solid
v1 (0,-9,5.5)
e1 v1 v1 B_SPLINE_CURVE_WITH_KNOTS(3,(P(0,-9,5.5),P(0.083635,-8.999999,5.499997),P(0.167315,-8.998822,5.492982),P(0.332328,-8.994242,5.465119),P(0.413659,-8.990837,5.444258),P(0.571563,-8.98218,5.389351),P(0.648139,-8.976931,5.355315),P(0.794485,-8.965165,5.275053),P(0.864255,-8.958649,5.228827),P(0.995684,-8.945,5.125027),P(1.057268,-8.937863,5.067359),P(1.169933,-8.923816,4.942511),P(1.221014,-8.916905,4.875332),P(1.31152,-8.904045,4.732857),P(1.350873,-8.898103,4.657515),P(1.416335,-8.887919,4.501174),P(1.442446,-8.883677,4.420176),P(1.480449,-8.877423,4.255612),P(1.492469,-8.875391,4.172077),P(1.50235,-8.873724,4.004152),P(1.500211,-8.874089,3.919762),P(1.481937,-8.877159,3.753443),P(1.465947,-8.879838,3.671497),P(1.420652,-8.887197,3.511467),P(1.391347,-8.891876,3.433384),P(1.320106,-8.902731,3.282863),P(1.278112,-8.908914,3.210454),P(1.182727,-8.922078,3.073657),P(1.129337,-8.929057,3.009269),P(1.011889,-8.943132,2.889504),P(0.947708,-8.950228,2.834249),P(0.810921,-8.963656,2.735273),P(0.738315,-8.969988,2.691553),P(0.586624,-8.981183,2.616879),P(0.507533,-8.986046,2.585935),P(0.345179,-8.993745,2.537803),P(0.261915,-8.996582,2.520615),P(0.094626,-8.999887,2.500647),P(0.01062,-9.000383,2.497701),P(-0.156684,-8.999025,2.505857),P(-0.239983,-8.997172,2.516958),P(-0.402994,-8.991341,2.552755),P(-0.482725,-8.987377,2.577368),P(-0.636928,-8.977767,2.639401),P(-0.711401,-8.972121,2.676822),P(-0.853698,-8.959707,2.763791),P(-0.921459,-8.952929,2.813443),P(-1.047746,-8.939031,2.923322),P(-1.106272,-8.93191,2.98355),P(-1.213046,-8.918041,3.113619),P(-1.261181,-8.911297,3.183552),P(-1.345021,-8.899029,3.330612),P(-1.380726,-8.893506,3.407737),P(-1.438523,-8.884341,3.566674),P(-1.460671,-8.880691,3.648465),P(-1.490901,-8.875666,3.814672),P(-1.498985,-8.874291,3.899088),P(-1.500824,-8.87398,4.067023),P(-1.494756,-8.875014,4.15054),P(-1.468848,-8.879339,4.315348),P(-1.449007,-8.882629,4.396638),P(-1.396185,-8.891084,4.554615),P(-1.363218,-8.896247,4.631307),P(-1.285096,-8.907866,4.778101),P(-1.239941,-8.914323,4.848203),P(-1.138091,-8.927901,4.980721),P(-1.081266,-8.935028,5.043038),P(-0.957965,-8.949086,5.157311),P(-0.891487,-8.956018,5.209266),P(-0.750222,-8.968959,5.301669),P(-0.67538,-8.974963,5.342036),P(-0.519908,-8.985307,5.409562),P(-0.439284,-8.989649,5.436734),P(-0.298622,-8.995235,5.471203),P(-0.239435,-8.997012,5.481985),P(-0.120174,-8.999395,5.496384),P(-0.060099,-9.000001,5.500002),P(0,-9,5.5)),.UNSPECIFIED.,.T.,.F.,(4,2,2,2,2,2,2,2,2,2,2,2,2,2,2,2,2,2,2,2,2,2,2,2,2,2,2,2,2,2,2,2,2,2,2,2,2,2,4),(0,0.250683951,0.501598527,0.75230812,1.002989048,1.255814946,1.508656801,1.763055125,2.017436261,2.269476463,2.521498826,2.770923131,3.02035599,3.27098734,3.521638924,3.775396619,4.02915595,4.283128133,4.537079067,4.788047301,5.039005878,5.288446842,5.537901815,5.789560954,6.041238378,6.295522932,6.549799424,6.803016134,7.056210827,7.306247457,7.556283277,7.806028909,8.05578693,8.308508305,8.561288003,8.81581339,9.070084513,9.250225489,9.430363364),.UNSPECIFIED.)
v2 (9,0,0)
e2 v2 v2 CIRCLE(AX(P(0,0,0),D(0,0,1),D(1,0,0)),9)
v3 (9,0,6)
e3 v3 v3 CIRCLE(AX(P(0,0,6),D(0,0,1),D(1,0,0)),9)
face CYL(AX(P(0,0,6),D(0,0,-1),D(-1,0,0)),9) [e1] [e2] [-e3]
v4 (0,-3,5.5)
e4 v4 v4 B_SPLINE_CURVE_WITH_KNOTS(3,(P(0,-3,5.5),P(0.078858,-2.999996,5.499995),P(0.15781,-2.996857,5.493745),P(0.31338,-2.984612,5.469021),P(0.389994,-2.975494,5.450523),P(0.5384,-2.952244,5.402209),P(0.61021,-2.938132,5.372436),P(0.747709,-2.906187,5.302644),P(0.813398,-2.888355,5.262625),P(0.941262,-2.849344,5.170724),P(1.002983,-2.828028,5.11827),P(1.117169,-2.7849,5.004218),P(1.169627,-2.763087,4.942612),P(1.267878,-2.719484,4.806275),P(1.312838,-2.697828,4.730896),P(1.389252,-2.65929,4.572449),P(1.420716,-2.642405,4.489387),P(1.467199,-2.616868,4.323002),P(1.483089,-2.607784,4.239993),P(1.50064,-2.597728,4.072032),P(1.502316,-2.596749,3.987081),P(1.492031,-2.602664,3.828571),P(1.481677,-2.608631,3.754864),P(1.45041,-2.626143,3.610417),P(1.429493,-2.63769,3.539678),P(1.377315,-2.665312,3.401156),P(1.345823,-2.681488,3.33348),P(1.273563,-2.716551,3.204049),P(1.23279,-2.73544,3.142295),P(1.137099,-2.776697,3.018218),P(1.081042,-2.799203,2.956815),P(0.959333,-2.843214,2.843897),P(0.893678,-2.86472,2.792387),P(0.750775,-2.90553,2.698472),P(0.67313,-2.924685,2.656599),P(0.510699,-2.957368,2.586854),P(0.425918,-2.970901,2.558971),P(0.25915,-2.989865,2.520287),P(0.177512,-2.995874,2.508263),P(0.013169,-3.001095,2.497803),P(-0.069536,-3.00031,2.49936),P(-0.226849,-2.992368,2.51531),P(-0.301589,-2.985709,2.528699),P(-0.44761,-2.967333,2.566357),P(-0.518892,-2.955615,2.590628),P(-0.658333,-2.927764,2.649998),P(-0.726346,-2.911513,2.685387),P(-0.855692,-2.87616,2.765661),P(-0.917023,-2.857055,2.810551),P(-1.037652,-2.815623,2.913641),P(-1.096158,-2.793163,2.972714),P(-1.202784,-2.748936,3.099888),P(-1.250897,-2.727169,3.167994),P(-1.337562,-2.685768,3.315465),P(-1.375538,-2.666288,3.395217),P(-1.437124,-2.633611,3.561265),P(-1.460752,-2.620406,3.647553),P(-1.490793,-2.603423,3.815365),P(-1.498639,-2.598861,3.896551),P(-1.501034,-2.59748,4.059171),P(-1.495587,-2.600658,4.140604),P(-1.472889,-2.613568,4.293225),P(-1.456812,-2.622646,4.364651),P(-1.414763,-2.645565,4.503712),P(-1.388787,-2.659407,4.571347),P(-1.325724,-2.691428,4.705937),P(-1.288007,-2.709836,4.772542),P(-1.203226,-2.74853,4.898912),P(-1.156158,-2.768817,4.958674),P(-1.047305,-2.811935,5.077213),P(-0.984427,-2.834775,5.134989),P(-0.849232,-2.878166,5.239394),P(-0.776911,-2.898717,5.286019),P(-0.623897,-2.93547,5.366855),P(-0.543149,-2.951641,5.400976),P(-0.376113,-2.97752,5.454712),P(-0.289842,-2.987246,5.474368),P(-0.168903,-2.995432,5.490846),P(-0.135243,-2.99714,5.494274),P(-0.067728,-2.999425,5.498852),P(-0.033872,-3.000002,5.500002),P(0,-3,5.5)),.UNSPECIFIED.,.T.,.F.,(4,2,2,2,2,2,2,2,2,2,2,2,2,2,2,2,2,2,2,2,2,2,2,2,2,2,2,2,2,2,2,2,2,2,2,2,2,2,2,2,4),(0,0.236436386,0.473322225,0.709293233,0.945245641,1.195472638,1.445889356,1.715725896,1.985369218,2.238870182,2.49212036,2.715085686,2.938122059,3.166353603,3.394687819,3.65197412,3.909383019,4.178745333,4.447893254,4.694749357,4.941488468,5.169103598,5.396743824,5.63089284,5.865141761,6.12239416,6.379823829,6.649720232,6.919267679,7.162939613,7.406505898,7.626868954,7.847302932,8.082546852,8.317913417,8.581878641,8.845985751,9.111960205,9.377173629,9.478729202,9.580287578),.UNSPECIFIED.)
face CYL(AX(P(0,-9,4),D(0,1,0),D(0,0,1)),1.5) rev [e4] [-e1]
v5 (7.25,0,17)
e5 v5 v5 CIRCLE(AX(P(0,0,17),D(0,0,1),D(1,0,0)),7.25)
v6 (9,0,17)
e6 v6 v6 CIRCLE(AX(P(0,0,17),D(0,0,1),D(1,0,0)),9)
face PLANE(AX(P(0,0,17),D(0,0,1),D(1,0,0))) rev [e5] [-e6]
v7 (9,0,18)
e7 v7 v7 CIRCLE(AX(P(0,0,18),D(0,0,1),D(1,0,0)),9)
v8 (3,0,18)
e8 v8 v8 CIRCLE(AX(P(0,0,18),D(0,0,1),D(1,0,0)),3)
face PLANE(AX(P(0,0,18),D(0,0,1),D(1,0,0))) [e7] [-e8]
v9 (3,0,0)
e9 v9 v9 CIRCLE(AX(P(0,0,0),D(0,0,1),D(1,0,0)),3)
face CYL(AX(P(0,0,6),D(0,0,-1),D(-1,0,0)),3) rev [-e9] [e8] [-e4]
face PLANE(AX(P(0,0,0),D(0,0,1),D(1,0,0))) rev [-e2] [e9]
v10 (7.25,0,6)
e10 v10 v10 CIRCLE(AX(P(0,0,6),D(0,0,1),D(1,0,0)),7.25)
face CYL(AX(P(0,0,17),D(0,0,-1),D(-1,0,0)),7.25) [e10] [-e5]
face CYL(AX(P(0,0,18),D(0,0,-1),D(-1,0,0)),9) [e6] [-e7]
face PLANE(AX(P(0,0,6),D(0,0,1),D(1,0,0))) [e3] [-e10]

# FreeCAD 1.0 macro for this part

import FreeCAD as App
import Part
import Sketcher
from FreeCAD import Vector
Q = App.Units.Quantity

doc = App.newDocument("Part")
body = doc.addObject("PartDesign::Body", "Body")

# Sketch on XY plane
sketch1 = body.newObject("Sketcher::SketchObject", "Sketch")
sketch1.AttachmentSupport = (doc.getObject("XY_Plane"), [""])
sketch1.MapMode = "FlatFace"
sketch1.addGeometry(Part.Circle(Vector(0, 0, 0), Vector(0, 0, 1), 9), False)
sketch1.addGeometry(Part.Circle(Vector(0, 0, 0), Vector(0, 0, 1), 3), False)
sketch1.addConstraint(Sketcher.Constraint("Coincident", 0, 3, -1, 1))
sketch1.addConstraint(Sketcher.Constraint("Coincident", 1, 3, -1, 1))
sketch1.addConstraint(Sketcher.Constraint("Diameter", 0, Q("18 mm")))
sketch1.addConstraint(Sketcher.Constraint("Diameter", 1, Q("6 mm")))
pad1 = body.newObject("PartDesign::Pad", "Pad")
pad1.Profile = sketch1
pad1.Length = 6

# Sketch on XY plane
sketch2 = body.newObject("Sketcher::SketchObject", "Sketch001")
sketch2.AttachmentSupport = (doc.getObject("XY_Plane"), [""])
sketch2.MapMode = "FlatFace"
sketch2.AttachmentOffset = App.Placement(Vector(0, 0, 6), App.Rotation())
sketch2.addGeometry(Part.Circle(Vector(0, 0, 0), Vector(0, 0, 1), 7.25), False)
sketch2.addGeometry(Part.Circle(Vector(0, 0, 0), Vector(0, 0, 1), 3), False)
sketch2.addConstraint(Sketcher.Constraint("Coincident", 0, 3, -1, 1))
sketch2.addConstraint(Sketcher.Constraint("Coincident", 1, 3, -1, 1))
sketch2.addConstraint(Sketcher.Constraint("Diameter", 1, Q("6 mm")))
sketch2.addConstraint(Sketcher.Constraint("Diameter", 0, Q("14.5 mm")))
pad2 = body.newObject("PartDesign::Pad", "Pad001")
pad2.Profile = sketch2
pad2.Length = 11

# Sketch on XY plane
sketch3 = body.newObject("Sketcher::SketchObject", "Sketch002")
sketch3.AttachmentSupport = (doc.getObject("XY_Plane"), [""])
sketch3.MapMode = "FlatFace"
sketch3.AttachmentOffset = App.Placement(Vector(0, 0, 17), App.Rotation())
sketch3.addGeometry(Part.Circle(Vector(0, 0, 0), Vector(0, 0, 1), 9), False)
sketch3.addGeometry(Part.Circle(Vector(0, 0, 0), Vector(0, 0, 1), 3), False)
sketch3.addConstraint(Sketcher.Constraint("Coincident", 0, 3, -1, 1))
sketch3.addConstraint(Sketcher.Constraint("Coincident", 1, 3, -1, 1))
sketch3.addConstraint(Sketcher.Constraint("Diameter", 0, Q("18 mm")))
sketch3.addConstraint(Sketcher.Constraint("Diameter", 1, Q("6 mm")))
pad3 = body.newObject("PartDesign::Pad", "Pad002")
pad3.Profile = sketch3
pad3.Length = 1

# Sketch on XZ plane
sketch4 = body.newObject("Sketcher::SketchObject", "Sketch003")
sketch4.AttachmentSupport = (doc.getObject("XZ_Plane"), [""])
sketch4.MapMode = "FlatFace"
sketch4.addGeometry(Part.Circle(Vector(0, 4, 0), Vector(0, 0, 1), 1.5), False)
sketch4.addConstraint(Sketcher.Constraint("PointOnObject", 0, 3, -2))
sketch4.addConstraint(Sketcher.Constraint("Diameter", 0, Q("3 mm")))
sketch4.addConstraint(Sketcher.Constraint("DistanceY", -1, 1, 0, 3, Q("4 mm")))
pocket1 = body.newObject("PartDesign::Pocket", "Pocket")
pocket1.Profile = sketch4
pocket1.Type = "ThroughAll"
pocket1.Reversed = True

doc.recompute()
